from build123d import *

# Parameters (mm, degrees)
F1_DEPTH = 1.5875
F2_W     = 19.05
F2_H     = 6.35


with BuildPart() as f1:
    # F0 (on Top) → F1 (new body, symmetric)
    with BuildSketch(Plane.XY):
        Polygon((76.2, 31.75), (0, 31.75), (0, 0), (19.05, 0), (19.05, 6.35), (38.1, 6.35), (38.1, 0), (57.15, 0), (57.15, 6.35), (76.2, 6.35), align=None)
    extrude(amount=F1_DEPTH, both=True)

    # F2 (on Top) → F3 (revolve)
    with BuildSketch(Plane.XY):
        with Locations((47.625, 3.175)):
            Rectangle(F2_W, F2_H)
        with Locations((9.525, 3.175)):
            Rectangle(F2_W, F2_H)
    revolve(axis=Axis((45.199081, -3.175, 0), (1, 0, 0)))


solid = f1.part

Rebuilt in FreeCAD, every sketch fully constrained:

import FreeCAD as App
import Part
import Sketcher
from FreeCAD import Vector
Q = App.Units.Quantity

doc = App.newDocument("Part")
body = doc.addObject("PartDesign::Body", "Body")

# Sketch on XY plane
sketch1 = doc.addObject("Sketcher::SketchObject", "Sketch")
body.addObject(sketch1)
sketch1.AttachmentSupport = (doc.XY_Plane, [""])
sketch1.MapMode = "FlatFace"
sketch1.addGeometry([
    Part.LineSegment(Vector(76, 32, 0), Vector(0, 32, 0)),  # 0
    Part.LineSegment(Vector(0, 32, 0), Vector(0, 0, 0)),  # 1
    Part.LineSegment(Vector(0, 0, 0), Vector(19, 0, 0)),  # 2
    Part.LineSegment(Vector(19, 0, 0), Vector(19, 6, 0)),  # 3
    Part.LineSegment(Vector(19, 6, 0), Vector(38, 6, 0)),  # 4
    Part.LineSegment(Vector(38, 6, 0), Vector(38, 0, 0)),  # 5
    Part.LineSegment(Vector(38, 0, 0), Vector(57, 0, 0)),  # 6
    Part.LineSegment(Vector(57, 0, 0), Vector(57, 6, 0)),  # 7
    Part.LineSegment(Vector(57, 6, 0), Vector(76, 6, 0)),  # 8
    Part.LineSegment(Vector(76, 6, 0), Vector(76, 32, 0)),  # 9
], False)
sketch1.addConstraint([
    Sketcher.Constraint("Coincident", 0, 2, 1, 1),
    Sketcher.Constraint("Coincident", 1, 2, 2, 1),
    Sketcher.Constraint("Coincident", 2, 2, 3, 1),
    Sketcher.Constraint("Coincident", 3, 2, 4, 1),
    Sketcher.Constraint("Coincident", 4, 2, 5, 1),
    Sketcher.Constraint("Coincident", 5, 2, 6, 1),
    Sketcher.Constraint("Coincident", 6, 2, 7, 1),
    Sketcher.Constraint("Coincident", 7, 2, 8, 1),
    Sketcher.Constraint("Coincident", 8, 2, 9, 1),
    Sketcher.Constraint("Coincident", 9, 2, 0, 1),
    Sketcher.Constraint("Horizontal", 0),
    Sketcher.Constraint("Vertical", 1),
    Sketcher.Constraint("Horizontal", 2),
    Sketcher.Constraint("Vertical", 3),
    Sketcher.Constraint("Horizontal", 4),
    Sketcher.Constraint("Vertical", 5),
    Sketcher.Constraint("Horizontal", 6),
    Sketcher.Constraint("Vertical", 7),
    Sketcher.Constraint("Horizontal", 8),
    Sketcher.Constraint("Vertical", 9),
    Sketcher.Constraint("Coincident", 1, 2, -1, 1),
    Sketcher.Constraint("PointOnObject", 5, 2, -1),
    Sketcher.Constraint("Horizontal", 4, 2, 7, 2),
    Sketcher.Constraint("Equal", 2, 4),
    Sketcher.Constraint("Equal", 4, 6),
    Sketcher.Constraint("Equal", 6, 8),
    Sketcher.Constraint("DistanceX", 0, 2, 0, 1, Q("3 in")),
    Sketcher.Constraint("DistanceY", 9, 1, 9, 2, Q("1 in")),
    Sketcher.Constraint("DistanceY", 1, 2, 1, 1, Q("1.25 in")),
])
pad1 = doc.addObject("PartDesign::Pad", "Pad")
body.addObject(pad1)
pad1.Profile = sketch1
pad1.Length = Q("0.125 in")
pad1.Midplane = True

# Sketch on XY plane
sketch2 = doc.addObject("Sketcher::SketchObject", "Sketch001")
body.addObject(sketch2)
sketch2.AttachmentSupport = (doc.XY_Plane, [""])
sketch2.MapMode = "FlatFace"
sketch2.addGeometry([
    Part.LineSegment(Vector(38, 6, 0), Vector(38, 0, 0)),  # 0
    Part.LineSegment(Vector(38, 0, 0), Vector(57, 0, 0)),  # 1
    Part.LineSegment(Vector(57, 0, 0), Vector(57, 6, 0)),  # 2
    Part.LineSegment(Vector(57, 6, 0), Vector(38, 6, 0)),  # 3
    Part.LineSegment(Vector(0, 6, 0), Vector(0, 0, 0)),  # 4
    Part.LineSegment(Vector(0, 0, 0), Vector(19, 0, 0)),  # 5
    Part.LineSegment(Vector(19, 0, 0), Vector(19, 6, 0)),  # 6
    Part.LineSegment(Vector(19, 6, 0), Vector(0, 6, 0)),  # 7
], False)
sketch2.addGeometry(Part.LineSegment(Vector(0, -3, 0), Vector(57, -3, 0)), True)  # axis
sketch2.addConstraint([
    Sketcher.Constraint("Coincident", 0, 2, 1, 1),
    Sketcher.Constraint("Coincident", 1, 2, 2, 1),
    Sketcher.Constraint("Coincident", 2, 2, 3, 1),
    Sketcher.Constraint("Coincident", 3, 2, 0, 1),
    Sketcher.Constraint("Coincident", 4, 2, 5, 1),
    Sketcher.Constraint("Coincident", 5, 2, 6, 1),
    Sketcher.Constraint("Coincident", 6, 2, 7, 1),
    Sketcher.Constraint("Coincident", 7, 2, 4, 1),
    Sketcher.Constraint("Vertical", 0),
    Sketcher.Constraint("Horizontal", 1),
    Sketcher.Constraint("Vertical", 2),
    Sketcher.Constraint("Horizontal", 3),
    Sketcher.Constraint("Vertical", 4),
    Sketcher.Constraint("Horizontal", 5),
    Sketcher.Constraint("Vertical", 6),
    Sketcher.Constraint("Horizontal", 7),
    Sketcher.Constraint("Horizontal", 8),
    Sketcher.Constraint("Coincident", 4, 2, -1, 1),
    Sketcher.Constraint("PointOnObject", 0, 2, -1),
    Sketcher.Constraint("PointOnObject", 8, 1, -2),
    Sketcher.Constraint("Horizontal", 3, 2, 6, 2),
    Sketcher.Constraint("Vertical", 2, 2, 8, 2),
    Sketcher.Constraint("Equal", 3, 5),
    Sketcher.Constraint("DistanceX", 1, 1, 1, 2, Q("0.75 in")),
    Sketcher.Constraint("DistanceX", 8, 1, 8, 2, Q("2.25 in")),
    Sketcher.Constraint("DistanceY", 0, 2, 0, 1, Q("0.25 in")),
    Sketcher.Constraint("DistanceY", 8, 1, -1, 1, Q("0.125 in")),
])
revolution = doc.addObject("PartDesign::Revolution", "Revolution")
body.addObject(revolution)
revolution.Profile = sketch2
revolution.ReferenceAxis = (sketch2, ["Axis0"])
revolution.Angle = 360

doc.recompute()
